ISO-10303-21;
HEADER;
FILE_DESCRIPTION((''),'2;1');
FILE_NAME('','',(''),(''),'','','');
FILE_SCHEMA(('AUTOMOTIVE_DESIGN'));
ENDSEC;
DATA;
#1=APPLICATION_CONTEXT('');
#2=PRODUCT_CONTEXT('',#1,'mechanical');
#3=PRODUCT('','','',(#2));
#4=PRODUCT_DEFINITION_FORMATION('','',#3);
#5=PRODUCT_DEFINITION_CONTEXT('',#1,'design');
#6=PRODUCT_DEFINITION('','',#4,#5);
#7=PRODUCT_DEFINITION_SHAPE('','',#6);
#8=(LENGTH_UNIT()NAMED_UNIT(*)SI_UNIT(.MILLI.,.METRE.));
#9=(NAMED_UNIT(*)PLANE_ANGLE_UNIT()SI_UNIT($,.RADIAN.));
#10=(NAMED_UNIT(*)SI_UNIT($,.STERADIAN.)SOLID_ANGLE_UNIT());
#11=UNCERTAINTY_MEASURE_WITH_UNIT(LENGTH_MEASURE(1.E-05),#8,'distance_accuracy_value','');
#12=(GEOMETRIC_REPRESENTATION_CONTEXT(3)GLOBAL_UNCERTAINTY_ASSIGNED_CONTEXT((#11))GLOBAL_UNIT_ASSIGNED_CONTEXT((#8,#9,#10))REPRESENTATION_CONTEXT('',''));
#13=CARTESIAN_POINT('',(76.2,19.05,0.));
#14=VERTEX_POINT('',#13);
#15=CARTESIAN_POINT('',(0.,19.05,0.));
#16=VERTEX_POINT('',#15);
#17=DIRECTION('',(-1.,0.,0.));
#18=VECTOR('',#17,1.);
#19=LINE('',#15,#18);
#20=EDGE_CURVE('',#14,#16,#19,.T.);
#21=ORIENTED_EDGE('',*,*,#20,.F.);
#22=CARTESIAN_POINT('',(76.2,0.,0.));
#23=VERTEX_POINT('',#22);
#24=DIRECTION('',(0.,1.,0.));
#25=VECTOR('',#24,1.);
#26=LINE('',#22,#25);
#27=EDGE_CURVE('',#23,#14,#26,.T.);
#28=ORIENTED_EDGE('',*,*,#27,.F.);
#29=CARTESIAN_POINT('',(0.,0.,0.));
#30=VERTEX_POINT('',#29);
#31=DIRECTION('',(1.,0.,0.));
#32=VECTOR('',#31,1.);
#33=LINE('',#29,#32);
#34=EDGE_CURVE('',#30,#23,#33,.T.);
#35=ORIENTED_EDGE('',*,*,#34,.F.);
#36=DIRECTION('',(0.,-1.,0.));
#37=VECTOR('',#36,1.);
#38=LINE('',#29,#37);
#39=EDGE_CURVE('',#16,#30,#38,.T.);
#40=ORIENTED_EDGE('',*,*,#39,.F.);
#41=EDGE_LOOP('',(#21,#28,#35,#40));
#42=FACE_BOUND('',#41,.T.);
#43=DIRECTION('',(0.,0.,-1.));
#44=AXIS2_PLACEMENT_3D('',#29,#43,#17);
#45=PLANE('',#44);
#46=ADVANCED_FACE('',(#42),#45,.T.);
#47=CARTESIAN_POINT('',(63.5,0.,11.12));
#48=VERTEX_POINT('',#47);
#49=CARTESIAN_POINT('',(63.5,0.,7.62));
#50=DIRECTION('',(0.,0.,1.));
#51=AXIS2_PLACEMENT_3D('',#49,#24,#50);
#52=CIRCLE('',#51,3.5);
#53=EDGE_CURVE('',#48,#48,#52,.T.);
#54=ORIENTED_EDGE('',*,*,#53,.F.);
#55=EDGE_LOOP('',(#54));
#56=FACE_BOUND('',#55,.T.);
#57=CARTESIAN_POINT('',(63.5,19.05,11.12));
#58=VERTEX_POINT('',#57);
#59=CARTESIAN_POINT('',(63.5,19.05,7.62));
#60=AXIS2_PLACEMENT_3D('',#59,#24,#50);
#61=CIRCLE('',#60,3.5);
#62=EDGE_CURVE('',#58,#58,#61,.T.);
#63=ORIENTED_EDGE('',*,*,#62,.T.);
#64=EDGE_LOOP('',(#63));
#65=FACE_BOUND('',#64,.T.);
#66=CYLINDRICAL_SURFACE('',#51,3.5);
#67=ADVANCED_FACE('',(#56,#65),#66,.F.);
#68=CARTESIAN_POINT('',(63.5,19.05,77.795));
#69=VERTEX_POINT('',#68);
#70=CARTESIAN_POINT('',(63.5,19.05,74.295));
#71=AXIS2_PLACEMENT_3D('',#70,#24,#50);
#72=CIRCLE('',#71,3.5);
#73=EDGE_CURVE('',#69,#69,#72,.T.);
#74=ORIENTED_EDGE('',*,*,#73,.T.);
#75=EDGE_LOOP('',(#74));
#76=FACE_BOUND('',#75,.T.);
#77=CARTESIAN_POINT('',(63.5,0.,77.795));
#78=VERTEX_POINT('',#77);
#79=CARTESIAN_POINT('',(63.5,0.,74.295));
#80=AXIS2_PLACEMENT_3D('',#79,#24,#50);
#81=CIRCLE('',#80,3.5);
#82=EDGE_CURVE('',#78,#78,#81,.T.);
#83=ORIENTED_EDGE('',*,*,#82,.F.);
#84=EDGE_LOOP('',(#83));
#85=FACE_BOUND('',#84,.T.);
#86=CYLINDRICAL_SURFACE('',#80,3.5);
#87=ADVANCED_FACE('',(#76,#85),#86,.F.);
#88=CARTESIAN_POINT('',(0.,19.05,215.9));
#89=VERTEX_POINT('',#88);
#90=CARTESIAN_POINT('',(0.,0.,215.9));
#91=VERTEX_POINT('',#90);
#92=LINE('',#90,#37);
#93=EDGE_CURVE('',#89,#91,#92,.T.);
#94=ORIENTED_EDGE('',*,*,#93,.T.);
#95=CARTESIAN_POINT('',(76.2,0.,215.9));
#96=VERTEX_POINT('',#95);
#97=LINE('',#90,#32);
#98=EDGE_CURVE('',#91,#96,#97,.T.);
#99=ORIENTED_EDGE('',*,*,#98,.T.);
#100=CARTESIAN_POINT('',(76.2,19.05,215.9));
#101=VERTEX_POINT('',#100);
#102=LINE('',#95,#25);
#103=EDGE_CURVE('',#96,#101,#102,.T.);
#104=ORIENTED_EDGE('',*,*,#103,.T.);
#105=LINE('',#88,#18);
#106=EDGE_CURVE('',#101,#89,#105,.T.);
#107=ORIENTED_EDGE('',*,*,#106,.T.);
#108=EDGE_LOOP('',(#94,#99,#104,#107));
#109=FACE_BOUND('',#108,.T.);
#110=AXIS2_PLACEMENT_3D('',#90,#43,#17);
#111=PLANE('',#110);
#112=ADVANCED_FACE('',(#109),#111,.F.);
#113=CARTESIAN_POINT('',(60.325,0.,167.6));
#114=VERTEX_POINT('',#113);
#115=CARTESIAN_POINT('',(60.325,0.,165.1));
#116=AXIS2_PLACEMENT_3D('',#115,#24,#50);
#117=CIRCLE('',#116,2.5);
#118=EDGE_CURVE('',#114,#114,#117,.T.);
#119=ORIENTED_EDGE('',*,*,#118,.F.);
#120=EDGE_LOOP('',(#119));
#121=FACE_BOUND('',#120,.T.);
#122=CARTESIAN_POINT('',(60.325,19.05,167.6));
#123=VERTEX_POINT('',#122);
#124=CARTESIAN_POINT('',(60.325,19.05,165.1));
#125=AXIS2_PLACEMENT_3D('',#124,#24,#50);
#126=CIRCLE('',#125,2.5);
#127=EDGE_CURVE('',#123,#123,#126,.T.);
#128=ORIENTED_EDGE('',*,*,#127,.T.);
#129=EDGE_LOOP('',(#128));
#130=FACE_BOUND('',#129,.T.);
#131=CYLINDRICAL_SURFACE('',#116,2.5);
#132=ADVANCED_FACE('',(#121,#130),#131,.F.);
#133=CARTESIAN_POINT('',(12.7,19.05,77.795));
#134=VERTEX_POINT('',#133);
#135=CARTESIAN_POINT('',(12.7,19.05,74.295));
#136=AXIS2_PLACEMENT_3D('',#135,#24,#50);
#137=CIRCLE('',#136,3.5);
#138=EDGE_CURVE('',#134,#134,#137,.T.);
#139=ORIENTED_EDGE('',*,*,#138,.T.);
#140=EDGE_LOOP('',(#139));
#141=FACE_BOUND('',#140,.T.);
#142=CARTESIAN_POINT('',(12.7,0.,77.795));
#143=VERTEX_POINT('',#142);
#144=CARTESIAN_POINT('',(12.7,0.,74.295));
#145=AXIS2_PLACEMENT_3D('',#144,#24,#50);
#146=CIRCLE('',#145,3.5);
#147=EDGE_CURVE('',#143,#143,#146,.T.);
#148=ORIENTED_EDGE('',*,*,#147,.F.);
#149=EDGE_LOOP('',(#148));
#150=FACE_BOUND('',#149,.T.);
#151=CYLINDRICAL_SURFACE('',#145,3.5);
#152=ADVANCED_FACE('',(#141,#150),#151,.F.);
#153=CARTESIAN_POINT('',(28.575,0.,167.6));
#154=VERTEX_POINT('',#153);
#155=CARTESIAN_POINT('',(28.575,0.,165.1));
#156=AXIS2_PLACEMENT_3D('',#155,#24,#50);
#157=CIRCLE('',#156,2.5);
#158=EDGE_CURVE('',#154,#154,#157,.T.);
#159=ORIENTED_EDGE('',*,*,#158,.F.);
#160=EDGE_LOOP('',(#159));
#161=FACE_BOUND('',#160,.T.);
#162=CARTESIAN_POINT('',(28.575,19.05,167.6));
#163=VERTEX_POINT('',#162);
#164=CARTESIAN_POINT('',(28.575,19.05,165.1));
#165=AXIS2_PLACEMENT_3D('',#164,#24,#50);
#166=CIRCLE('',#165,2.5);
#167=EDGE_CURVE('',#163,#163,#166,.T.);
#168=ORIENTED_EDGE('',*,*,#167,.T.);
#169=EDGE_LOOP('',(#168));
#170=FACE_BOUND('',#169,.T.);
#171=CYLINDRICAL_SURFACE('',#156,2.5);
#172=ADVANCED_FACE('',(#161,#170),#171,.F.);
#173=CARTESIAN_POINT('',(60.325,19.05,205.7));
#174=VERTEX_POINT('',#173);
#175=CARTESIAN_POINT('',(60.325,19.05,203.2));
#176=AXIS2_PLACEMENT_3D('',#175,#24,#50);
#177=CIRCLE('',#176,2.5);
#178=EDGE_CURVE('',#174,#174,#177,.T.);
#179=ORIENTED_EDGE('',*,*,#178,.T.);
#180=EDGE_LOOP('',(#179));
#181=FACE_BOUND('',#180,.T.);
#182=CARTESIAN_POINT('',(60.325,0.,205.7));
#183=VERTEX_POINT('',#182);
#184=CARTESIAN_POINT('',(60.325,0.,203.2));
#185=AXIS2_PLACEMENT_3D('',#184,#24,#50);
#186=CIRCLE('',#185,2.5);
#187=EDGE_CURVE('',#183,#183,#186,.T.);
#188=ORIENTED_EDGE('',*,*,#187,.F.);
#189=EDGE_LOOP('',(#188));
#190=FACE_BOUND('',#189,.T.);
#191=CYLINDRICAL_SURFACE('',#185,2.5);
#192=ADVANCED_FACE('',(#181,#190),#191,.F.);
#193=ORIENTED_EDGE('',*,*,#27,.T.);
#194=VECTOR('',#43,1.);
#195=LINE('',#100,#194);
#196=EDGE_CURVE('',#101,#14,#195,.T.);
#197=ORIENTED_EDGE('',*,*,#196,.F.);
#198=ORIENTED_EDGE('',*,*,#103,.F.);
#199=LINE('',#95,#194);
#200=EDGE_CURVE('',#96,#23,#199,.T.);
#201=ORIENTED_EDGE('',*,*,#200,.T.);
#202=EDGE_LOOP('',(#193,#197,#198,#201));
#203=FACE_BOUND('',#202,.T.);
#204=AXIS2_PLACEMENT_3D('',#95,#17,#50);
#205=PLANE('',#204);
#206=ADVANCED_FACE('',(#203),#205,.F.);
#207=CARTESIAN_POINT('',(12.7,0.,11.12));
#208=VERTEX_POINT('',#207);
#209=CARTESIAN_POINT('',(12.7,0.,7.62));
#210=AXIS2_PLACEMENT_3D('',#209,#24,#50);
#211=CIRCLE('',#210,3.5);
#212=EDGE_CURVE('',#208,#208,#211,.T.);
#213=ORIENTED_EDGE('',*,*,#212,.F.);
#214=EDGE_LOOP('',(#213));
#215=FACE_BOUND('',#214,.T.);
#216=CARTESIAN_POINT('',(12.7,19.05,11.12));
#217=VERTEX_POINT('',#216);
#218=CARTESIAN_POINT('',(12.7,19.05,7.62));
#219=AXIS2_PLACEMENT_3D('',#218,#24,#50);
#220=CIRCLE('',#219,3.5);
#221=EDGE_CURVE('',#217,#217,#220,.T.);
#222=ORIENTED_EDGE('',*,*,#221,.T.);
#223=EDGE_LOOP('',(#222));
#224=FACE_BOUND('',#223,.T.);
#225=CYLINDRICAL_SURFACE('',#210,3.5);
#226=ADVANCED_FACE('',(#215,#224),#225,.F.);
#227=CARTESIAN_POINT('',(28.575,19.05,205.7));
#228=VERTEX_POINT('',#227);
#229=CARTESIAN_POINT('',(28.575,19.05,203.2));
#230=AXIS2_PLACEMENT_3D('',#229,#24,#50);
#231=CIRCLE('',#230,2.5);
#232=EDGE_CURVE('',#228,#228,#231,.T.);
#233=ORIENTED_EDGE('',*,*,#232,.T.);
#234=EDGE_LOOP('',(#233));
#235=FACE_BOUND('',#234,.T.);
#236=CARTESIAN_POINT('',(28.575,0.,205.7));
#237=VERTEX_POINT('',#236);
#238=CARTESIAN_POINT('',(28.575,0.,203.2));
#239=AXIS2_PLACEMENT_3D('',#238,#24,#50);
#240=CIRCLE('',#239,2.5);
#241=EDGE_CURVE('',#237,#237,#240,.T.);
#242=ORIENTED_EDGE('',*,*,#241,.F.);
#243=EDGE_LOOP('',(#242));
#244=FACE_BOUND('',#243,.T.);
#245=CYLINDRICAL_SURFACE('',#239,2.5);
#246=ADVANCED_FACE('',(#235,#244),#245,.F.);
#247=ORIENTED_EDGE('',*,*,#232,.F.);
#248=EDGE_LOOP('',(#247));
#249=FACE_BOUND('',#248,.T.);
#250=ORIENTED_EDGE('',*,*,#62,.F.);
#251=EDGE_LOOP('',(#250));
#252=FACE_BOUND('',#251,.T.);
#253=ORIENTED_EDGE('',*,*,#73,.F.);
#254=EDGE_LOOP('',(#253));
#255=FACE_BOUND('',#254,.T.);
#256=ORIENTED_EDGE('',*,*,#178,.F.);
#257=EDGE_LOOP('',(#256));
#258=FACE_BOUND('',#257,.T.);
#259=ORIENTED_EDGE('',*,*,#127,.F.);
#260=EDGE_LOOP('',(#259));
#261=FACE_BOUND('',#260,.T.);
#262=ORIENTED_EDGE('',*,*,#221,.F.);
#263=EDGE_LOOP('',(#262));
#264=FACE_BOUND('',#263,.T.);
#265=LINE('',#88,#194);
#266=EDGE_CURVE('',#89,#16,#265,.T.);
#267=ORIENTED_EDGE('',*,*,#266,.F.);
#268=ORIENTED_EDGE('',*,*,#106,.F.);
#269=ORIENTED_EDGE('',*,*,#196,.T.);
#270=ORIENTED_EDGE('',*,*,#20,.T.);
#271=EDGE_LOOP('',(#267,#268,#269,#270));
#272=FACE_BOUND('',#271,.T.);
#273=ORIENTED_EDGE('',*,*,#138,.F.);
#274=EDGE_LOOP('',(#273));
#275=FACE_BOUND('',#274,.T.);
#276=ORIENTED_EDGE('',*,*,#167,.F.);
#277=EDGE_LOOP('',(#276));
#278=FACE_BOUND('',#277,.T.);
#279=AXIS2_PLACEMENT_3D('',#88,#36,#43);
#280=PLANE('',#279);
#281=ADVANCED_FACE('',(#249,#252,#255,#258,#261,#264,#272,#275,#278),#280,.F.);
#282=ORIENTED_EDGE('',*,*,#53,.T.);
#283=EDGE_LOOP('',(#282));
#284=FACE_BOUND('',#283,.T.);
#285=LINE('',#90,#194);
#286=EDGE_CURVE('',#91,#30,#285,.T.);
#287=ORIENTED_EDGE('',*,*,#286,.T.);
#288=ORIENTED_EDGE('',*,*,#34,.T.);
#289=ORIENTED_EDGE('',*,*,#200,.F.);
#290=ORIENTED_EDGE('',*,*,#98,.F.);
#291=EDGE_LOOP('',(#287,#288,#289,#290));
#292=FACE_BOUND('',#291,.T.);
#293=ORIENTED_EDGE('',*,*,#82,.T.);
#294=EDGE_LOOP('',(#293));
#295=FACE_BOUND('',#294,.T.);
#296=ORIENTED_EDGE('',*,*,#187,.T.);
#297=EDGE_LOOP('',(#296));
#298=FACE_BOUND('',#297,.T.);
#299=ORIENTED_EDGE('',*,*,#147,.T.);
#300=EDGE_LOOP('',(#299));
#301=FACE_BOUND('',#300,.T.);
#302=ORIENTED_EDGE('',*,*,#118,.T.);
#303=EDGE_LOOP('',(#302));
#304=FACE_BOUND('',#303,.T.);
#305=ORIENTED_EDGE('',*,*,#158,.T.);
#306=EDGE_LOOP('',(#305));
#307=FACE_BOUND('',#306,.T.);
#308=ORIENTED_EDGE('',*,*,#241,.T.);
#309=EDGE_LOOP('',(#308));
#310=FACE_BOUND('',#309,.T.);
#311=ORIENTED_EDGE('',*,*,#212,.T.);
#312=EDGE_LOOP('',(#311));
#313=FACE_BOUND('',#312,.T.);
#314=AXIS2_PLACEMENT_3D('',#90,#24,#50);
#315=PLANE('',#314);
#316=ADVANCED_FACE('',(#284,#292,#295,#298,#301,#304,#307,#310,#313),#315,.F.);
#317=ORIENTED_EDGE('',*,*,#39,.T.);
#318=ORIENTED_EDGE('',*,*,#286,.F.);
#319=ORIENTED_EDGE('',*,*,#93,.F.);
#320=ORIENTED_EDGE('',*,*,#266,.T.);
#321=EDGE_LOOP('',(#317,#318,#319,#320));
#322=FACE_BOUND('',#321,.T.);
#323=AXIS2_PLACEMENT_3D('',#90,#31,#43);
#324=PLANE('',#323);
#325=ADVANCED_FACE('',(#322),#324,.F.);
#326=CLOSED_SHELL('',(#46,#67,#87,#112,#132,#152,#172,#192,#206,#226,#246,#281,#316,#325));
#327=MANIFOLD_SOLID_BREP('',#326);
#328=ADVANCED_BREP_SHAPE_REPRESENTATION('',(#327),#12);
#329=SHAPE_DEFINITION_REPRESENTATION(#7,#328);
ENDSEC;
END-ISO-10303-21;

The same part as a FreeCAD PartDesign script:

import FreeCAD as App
import Part
import Sketcher
Q = App.Units.Quantity


def add_polygon(sketch, points):
    """Adds a closed chain of lines whose ends are joined by coincident constraints."""
    first, n = sketch.GeometryCount, len(points)
    for a, b in zip(points, points[1:] + points[:1]):
        sketch.addGeometry(Part.LineSegment(App.Vector(*a, 0), App.Vector(*b, 0)), False)
    for i in range(n):
        sketch.addConstraint(Sketcher.Constraint("Coincident", first + i, 2, first + (i + 1) % n, 1))

doc = App.newDocument("Part")
body = doc.addObject("PartDesign::Body", "Body")

# Sketch on XY plane
sketch1 = doc.addObject("Sketcher::SketchObject", "Sketch")
body.addObject(sketch1)
sketch1.AttachmentSupport = (doc.XY_Plane, [""])
sketch1.MapMode = "FlatFace"
add_polygon(sketch1, [(0, 19.05), (0, 0), (76.2, 0), (76.2, 19.05)])  # lines 0-3
sketch1.addConstraint([
    Sketcher.Constraint("Vertical", 0),
    Sketcher.Constraint("Horizontal", 1),
    Sketcher.Constraint("Vertical", 2),
    Sketcher.Constraint("Horizontal", 3),
    Sketcher.Constraint("Coincident", 0, 2, -1, 1),
    Sketcher.Constraint("DistanceX", 1, 1, 1, 2, Q("3 in")),
    Sketcher.Constraint("DistanceY", 0, 2, 0, 1, Q("0.75 in")),
])
pad1 = doc.addObject("PartDesign::Pad", "Pad")
body.addObject(pad1)
pad1.Profile = sketch1
pad1.Length = Q("8.5 in")

# Sketch on XZ plane
sketch2 = doc.addObject("Sketcher::SketchObject", "Sketch001")
body.addObject(sketch2)
sketch2.AttachmentSupport = (doc.XZ_Plane, [""])
sketch2.MapMode = "FlatFace"
sketch2.AttachmentOffset = App.Placement(App.Vector(0, 0, -0.75 * 25.4), App.Rotation())
sketch2.addGeometry([
    Part.Circle(App.Vector(12.7, 7.62, 0), App.Vector(0, 0, 1), 3.5),
    Part.Circle(App.Vector(63.5, 7.62, 0), App.Vector(0, 0, 1), 3.5),
    Part.Circle(App.Vector(63.5, 74.295, 0), App.Vector(0, 0, 1), 3.5),
    Part.Circle(App.Vector(12.7, 74.295, 0), App.Vector(0, 0, 1), 3.5),
], False)
sketch2.addConstraint([
    Sketcher.Constraint("Equal", 0, 1),
    Sketcher.Constraint("Equal", 1, 2),
    Sketcher.Constraint("Equal", 2, 3),
    Sketcher.Constraint("Horizontal", 0, 3, 1, 3),
    Sketcher.Constraint("Horizontal", 2, 3, 3, 3),
    Sketcher.Constraint("Vertical", 1, 3, 2, 3),
    Sketcher.Constraint("Vertical", 0, 3, 3, 3),
    Sketcher.Constraint("DistanceX", 0, 3, 1, 3, Q("2 in")),
    Sketcher.Constraint("DistanceX", -1, 1, 0, 3, Q("0.5 in")),
    Sketcher.Constraint("DistanceY", -1, 1, 0, 3, Q("0.3 in")),
    Sketcher.Constraint("Diameter", 0, 7.0),
    Sketcher.Constraint("DistanceY", -1, 1, 2, 3, Q("2.925 in")),
])
pocket1 = doc.addObject("PartDesign::Pocket", "Pocket")
body.addObject(pocket1)
pocket1.Profile = sketch2
pocket1.Type = "ThroughAll"
pocket1.Reversed = True

# Sketch on XZ plane
sketch3 = doc.addObject("Sketcher::SketchObject", "Sketch002")
body.addObject(sketch3)
sketch3.AttachmentSupport = (doc.XZ_Plane, [""])
sketch3.MapMode = "FlatFace"
sketch3.AttachmentOffset = App.Placement(App.Vector(0, 0, -0.75 * 25.4), App.Rotation())
sketch3.addGeometry([
    Part.Circle(App.Vector(28.575, 203.2, 0), App.Vector(0, 0, 1), 2.5),
    Part.Circle(App.Vector(60.325, 203.2, 0), App.Vector(0, 0, 1), 2.5),
    Part.Circle(App.Vector(60.325, 165.1, 0), App.Vector(0, 0, 1), 2.5),
    Part.Circle(App.Vector(28.575, 165.1, 0), App.Vector(0, 0, 1), 2.5),
], False)
sketch3.addConstraint([
    Sketcher.Constraint("Equal", 0, 1),
    Sketcher.Constraint("Equal", 1, 2),
    Sketcher.Constraint("Equal", 2, 3),
    Sketcher.Constraint("Horizontal", 0, 3, 1, 3),
    Sketcher.Constraint("Horizontal", 2, 3, 3, 3),
    Sketcher.Constraint("Vertical", 1, 3, 2, 3),
    Sketcher.Constraint("Vertical", 0, 3, 3, 3),
    Sketcher.Constraint("DistanceY", -1, 1, 0, 3, Q("8 in")),
    Sketcher.Constraint("DistanceY", -1, 1, 2, 3, Q("6.5 in")),
    Sketcher.Constraint("Diameter", 0, 5.0),
    Sketcher.Constraint("DistanceX", 0, 3, 1, 3, Q("1.25 in")),
    Sketcher.Constraint("DistanceX", -1, 1, 0, 3, Q("1.125 in")),
])
pocket2 = doc.addObject("PartDesign::Pocket", "Pocket001")
body.addObject(pocket2)
pocket2.Profile = sketch3
pocket2.Type = "ThroughAll"
pocket2.Reversed = True

doc.recompute()
